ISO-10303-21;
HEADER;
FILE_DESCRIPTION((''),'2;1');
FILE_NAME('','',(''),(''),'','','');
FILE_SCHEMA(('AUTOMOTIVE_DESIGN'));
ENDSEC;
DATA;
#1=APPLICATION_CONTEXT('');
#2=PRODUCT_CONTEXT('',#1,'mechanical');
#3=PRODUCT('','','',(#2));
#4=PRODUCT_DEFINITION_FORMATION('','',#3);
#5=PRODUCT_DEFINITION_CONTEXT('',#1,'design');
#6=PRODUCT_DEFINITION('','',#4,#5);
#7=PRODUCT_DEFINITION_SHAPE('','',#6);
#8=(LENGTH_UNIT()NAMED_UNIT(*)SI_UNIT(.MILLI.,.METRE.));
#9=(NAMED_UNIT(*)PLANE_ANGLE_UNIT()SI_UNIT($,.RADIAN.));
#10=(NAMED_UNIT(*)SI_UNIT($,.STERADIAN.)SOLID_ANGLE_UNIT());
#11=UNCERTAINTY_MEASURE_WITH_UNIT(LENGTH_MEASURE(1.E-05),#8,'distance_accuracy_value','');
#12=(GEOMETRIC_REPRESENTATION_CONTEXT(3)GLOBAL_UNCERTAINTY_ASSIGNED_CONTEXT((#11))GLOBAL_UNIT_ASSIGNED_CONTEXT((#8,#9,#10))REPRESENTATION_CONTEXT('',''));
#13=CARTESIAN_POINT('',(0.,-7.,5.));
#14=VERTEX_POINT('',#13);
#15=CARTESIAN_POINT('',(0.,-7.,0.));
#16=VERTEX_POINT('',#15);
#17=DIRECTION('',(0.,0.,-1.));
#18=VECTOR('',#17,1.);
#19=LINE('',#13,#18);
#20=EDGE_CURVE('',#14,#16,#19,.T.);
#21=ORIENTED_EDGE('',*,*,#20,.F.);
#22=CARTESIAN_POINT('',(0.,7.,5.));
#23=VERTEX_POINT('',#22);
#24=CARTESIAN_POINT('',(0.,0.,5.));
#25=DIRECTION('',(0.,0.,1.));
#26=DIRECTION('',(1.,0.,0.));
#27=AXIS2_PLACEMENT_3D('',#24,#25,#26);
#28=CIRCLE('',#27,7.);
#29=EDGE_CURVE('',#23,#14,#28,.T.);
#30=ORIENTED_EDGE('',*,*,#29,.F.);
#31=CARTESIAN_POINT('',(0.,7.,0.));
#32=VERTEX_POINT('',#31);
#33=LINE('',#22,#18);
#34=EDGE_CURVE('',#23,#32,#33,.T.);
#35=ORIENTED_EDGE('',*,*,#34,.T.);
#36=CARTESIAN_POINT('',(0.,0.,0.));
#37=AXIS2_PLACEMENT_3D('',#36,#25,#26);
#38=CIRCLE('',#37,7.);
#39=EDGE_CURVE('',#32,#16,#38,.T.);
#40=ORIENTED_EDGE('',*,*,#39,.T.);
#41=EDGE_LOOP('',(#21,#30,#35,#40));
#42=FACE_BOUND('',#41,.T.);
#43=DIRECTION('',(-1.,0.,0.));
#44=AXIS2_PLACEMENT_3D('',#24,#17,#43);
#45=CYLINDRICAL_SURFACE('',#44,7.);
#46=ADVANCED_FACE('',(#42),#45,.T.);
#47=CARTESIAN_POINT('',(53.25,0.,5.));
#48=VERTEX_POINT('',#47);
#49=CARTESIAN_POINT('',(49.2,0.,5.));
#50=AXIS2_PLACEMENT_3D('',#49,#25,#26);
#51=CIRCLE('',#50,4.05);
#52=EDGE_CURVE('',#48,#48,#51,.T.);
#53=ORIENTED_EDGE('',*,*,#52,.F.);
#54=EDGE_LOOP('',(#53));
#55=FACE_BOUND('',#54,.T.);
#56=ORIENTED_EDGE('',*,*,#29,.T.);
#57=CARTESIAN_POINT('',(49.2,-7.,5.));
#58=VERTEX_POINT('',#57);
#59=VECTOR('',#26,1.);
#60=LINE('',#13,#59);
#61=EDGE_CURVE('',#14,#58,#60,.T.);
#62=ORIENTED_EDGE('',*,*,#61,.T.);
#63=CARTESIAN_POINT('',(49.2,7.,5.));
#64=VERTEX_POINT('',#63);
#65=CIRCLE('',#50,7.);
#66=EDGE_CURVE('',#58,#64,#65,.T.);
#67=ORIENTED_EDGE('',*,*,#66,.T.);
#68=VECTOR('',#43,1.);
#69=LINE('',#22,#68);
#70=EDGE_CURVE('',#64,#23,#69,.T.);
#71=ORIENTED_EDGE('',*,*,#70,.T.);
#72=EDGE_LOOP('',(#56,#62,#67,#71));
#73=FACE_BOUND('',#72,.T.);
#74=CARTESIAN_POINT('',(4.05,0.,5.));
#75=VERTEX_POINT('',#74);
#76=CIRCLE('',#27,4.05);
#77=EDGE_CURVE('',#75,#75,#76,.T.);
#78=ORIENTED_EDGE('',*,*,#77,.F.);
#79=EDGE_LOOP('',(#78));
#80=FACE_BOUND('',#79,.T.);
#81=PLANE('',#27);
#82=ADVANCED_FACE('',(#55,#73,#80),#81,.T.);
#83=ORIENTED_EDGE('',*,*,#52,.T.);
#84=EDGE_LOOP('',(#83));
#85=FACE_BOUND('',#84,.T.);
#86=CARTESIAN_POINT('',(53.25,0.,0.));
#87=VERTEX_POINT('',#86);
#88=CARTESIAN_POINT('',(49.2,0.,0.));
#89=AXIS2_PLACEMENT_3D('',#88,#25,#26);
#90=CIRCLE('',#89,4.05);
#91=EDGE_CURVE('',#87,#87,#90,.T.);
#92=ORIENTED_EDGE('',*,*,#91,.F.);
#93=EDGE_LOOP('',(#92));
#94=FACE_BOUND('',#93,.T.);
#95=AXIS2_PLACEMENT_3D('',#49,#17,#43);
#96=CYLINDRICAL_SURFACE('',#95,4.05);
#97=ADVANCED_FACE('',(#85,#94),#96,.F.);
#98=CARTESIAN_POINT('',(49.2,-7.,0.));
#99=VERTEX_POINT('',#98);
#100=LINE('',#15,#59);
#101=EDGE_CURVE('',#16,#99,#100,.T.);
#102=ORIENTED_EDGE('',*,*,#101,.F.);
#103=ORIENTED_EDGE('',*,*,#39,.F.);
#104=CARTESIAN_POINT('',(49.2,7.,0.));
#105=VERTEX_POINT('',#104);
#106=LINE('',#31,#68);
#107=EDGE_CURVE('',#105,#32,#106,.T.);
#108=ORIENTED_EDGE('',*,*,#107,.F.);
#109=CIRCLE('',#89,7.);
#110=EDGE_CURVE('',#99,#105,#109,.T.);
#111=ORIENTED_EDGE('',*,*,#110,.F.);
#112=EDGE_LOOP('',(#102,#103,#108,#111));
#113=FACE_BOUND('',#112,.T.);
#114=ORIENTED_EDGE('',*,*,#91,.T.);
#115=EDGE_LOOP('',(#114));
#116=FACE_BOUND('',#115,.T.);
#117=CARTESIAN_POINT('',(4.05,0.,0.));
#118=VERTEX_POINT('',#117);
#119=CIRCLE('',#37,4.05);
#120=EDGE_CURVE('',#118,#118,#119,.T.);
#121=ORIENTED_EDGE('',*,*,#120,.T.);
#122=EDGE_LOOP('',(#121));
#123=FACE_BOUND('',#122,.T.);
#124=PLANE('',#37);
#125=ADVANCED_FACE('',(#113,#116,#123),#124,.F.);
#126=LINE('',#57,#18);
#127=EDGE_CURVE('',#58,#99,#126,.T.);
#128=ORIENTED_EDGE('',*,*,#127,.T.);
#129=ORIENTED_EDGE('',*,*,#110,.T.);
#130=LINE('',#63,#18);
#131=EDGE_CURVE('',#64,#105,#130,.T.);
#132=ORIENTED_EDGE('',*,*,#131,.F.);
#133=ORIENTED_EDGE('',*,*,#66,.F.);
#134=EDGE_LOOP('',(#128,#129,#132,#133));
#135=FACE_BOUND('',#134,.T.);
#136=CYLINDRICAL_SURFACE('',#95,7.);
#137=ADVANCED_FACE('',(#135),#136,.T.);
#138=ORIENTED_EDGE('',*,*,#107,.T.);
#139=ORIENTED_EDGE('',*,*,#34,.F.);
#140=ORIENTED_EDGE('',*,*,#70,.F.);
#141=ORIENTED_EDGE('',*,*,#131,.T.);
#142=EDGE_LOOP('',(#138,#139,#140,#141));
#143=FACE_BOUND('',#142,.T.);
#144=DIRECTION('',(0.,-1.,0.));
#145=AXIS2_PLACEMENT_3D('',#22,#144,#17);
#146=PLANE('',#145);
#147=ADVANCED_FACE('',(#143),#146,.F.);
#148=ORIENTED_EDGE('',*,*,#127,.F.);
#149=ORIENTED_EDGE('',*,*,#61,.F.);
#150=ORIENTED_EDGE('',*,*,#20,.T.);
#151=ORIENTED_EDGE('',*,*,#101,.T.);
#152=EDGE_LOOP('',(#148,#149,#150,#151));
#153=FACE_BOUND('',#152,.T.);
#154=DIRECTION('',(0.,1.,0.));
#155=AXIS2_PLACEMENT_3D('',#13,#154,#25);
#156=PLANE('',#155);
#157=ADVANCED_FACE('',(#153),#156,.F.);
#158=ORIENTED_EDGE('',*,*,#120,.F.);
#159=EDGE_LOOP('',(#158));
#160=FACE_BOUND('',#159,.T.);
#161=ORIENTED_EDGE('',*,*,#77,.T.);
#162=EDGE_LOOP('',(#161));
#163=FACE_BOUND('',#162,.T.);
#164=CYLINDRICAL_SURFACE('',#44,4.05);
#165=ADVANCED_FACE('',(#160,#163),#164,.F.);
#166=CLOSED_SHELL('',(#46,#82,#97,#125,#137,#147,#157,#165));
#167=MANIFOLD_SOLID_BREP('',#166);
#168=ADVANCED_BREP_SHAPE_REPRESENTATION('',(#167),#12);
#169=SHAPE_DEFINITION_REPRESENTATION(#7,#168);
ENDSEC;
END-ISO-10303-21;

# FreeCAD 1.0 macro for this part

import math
import FreeCAD as App
import Part
import Sketcher
from FreeCAD import Vector
Q = App.Units.Quantity

doc = App.newDocument("Part")
body = doc.addObject("PartDesign::Body", "Body")

# Sketch on XY plane
sketch1 = body.newObject("Sketcher::SketchObject", "Sketch")
sketch1.AttachmentSupport = (doc.getObject("XY_Plane"), [""])
sketch1.MapMode = "FlatFace"
sketch1.addGeometry([
    Part.LineSegment(Vector(0, -7, 0), Vector(49.2, -7, 0)),  # 0
    Part.ArcOfCircle(Part.Circle(Vector(49.2, 0, 0), Vector(0, 0, 1), 7), math.radians(-90), math.radians(90)),  # 1
    Part.LineSegment(Vector(49.2, 7, 0), Vector(0, 7, 0)),  # 2
    Part.ArcOfCircle(Part.Circle(Vector(0, 0, 0), Vector(0, 0, 1), 7), math.radians(90), math.radians(270)),  # 3
    Part.Circle(Vector(0, 0, 0), Vector(0, 0, 1), 4),  # 4
    Part.Circle(Vector(49.2, 0, 0), Vector(0, 0, 1), 4),  # 5
], False)
sketch1.addConstraint([
    Sketcher.Constraint("Tangent", 0, 2, 1, 1),
    Sketcher.Constraint("Tangent", 1, 2, 2, 1),
    Sketcher.Constraint("Tangent", 2, 2, 3, 1),
    Sketcher.Constraint("Tangent", 3, 2, 0, 1),
    Sketcher.Constraint("Horizontal", 0),
    Sketcher.Constraint("Horizontal", 2),
    Sketcher.Constraint("Coincident", 3, 3, -1, 1),
    Sketcher.Constraint("Coincident", 4, 3, -1, 1),
    Sketcher.Constraint("Coincident", 5, 3, 1, 3),
    Sketcher.Constraint("Equal", 4, 5),
    Sketcher.Constraint("Radius", 1, Q("7 mm")),
    Sketcher.Constraint("Diameter", 4, Q("8.1 mm")),
    Sketcher.Constraint("DistanceX", 0, 1, 0, 2, Q("49.2 mm")),
])
pad1 = body.newObject("PartDesign::Pad", "Pad")
pad1.Profile = sketch1
pad1.Length = 5

doc.recompute()
